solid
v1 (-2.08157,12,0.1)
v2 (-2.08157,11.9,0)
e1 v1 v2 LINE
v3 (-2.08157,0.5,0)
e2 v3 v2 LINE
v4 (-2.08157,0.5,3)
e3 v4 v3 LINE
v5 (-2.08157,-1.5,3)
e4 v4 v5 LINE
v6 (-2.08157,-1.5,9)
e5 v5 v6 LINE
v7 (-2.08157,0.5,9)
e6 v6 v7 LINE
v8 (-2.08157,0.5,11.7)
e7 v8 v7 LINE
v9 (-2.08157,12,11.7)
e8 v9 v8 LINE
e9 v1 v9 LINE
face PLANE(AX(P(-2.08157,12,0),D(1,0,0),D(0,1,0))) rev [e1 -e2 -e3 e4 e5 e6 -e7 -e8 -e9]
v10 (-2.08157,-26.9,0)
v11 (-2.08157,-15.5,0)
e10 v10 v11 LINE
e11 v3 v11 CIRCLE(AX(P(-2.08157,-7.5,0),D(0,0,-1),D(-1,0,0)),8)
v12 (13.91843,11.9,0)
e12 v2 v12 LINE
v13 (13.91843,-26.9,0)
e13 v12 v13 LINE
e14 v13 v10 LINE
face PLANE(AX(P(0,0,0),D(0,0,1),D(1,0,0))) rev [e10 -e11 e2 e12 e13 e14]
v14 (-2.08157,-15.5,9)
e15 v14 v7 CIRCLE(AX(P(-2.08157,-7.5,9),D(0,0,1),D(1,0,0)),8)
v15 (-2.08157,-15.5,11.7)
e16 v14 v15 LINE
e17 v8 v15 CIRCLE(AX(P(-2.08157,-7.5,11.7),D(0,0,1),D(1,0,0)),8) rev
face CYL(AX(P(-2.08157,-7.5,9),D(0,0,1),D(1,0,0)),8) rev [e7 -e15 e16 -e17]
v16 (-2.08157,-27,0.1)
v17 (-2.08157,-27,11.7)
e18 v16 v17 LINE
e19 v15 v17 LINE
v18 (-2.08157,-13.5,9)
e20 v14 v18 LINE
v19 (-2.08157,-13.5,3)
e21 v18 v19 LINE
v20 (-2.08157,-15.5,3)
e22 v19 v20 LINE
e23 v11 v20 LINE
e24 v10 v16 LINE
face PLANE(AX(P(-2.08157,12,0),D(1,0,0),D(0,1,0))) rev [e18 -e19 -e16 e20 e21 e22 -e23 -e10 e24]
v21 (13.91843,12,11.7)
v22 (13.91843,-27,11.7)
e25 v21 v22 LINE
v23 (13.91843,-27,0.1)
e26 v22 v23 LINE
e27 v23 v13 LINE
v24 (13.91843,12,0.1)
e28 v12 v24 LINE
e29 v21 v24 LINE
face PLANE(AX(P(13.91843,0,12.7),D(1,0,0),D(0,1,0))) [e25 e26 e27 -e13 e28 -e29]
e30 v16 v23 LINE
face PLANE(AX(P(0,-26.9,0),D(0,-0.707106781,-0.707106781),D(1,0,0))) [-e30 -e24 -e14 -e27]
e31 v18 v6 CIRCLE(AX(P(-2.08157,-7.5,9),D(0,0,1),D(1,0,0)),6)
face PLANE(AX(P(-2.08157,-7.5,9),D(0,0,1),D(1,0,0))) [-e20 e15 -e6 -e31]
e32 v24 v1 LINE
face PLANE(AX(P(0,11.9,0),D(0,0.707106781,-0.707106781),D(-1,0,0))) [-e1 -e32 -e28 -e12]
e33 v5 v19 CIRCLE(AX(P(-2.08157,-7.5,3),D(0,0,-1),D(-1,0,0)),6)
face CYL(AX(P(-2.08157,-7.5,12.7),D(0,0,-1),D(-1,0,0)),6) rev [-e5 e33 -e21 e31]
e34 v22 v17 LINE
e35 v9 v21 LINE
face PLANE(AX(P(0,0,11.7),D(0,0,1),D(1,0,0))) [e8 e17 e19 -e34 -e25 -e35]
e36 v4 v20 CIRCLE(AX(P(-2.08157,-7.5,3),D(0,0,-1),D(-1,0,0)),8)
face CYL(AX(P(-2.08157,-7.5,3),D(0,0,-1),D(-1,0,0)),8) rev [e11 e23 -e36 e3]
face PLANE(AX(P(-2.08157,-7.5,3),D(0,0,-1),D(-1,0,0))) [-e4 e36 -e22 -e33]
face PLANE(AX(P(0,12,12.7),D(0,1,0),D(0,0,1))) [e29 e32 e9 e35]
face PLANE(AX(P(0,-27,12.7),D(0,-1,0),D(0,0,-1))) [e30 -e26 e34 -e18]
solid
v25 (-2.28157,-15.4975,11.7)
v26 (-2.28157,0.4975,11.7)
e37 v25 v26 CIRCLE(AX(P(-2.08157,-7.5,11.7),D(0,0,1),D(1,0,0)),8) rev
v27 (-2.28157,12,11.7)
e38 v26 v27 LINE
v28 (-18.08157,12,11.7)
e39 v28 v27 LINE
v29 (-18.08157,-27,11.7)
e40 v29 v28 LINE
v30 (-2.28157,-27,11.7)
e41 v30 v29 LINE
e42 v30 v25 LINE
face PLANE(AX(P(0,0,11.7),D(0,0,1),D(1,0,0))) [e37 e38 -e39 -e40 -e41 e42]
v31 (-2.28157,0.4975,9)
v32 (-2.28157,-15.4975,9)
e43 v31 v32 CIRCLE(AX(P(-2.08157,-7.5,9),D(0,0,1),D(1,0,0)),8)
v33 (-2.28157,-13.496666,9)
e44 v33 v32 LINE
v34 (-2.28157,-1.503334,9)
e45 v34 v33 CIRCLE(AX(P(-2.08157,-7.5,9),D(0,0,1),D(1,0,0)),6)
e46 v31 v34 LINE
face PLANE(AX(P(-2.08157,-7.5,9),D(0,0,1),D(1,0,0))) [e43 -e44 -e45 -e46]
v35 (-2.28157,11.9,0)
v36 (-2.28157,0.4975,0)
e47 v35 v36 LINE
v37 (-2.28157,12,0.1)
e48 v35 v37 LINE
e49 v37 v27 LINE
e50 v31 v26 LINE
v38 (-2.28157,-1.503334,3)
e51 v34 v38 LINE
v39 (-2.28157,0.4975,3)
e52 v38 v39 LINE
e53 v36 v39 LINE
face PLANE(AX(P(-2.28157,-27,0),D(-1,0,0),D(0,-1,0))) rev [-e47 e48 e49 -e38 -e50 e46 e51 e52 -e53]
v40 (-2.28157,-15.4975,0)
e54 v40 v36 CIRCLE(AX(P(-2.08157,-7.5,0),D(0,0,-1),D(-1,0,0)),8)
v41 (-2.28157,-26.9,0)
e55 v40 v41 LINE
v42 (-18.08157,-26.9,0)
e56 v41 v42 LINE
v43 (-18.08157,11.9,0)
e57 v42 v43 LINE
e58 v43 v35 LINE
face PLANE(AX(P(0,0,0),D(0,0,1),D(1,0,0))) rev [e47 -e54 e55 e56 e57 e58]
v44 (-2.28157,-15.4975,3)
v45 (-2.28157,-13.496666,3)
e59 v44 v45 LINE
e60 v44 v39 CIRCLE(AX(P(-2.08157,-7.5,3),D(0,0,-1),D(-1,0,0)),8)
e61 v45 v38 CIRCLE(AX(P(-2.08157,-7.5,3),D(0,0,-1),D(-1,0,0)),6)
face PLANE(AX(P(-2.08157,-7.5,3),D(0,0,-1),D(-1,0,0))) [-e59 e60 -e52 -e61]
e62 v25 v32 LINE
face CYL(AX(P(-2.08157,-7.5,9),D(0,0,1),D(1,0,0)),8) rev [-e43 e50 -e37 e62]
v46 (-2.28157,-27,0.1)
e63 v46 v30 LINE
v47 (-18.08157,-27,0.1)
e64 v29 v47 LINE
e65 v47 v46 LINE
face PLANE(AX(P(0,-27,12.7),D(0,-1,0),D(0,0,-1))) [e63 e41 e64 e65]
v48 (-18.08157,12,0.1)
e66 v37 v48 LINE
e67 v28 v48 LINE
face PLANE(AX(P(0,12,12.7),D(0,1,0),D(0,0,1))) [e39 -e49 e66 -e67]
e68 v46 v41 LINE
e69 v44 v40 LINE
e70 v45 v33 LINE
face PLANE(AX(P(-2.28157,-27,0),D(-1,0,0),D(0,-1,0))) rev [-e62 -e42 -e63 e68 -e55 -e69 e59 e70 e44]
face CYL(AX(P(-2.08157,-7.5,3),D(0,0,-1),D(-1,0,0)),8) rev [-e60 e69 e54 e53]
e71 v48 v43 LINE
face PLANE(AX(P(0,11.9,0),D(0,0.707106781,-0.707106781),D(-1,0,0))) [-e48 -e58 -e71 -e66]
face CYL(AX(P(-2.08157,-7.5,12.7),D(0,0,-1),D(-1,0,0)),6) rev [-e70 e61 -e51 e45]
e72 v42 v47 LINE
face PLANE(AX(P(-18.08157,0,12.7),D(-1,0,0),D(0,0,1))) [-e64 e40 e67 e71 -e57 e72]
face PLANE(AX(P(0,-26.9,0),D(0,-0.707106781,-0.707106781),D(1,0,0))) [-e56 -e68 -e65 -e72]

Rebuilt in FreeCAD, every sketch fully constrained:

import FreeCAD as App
import Part
import Sketcher
from FreeCAD import Vector


def edges_at(feature, points):
    """Names of the edges that pass closest to the given points."""
    edges = feature.Shape.Edges
    near = lambda p: min(range(len(edges)), key=lambda i: edges[i].distToShape(Part.Vertex(*p))[0])
    return sorted({f"Edge{near(p) + 1}" for p in points})

doc = App.newDocument("Part")
body = doc.addObject("PartDesign::Body", "Body")
body.AllowCompound = True

# Sketch on XY plane
sketch1 = body.newObject("Sketcher::SketchObject", "Sketch")
sketch1.AttachmentSupport = (doc.getObject("XY_Plane"), [""])
sketch1.MapMode = "FlatFace"
sketch1.addGeometry(Part.LineSegment(Vector(-18, 12, 0), Vector(-18, -27, 0)), False)
sketch1.addGeometry(Part.LineSegment(Vector(-18, -27, 0), Vector(14, -27, 0)), False)
sketch1.addGeometry(Part.LineSegment(Vector(14, -27, 0), Vector(14, 12, 0)), False)
sketch1.addGeometry(Part.LineSegment(Vector(14, 12, 0), Vector(-18, 12, 0)), False)
sketch1.addGeometry(Part.Circle(Vector(-2, -8, 0), Vector(0, 0, 1), 6), False)
sketch1.addConstraint(Sketcher.Constraint("Coincident", 0, 2, 1, 1))
sketch1.addConstraint(Sketcher.Constraint("Coincident", 1, 2, 2, 1))
sketch1.addConstraint(Sketcher.Constraint("Coincident", 2, 2, 3, 1))
sketch1.addConstraint(Sketcher.Constraint("Coincident", 3, 2, 0, 1))
sketch1.addConstraint(Sketcher.Constraint("Vertical", 0))
sketch1.addConstraint(Sketcher.Constraint("Horizontal", 1))
sketch1.addConstraint(Sketcher.Constraint("Vertical", 2))
sketch1.addConstraint(Sketcher.Constraint("Horizontal", 3))
sketch1.addConstraint(Sketcher.Constraint("Diameter", 4, 12.0))
sketch1.addConstraint(Sketcher.Constraint("DistanceX", 1, 1, 1, 2, 32.0))
sketch1.addConstraint(Sketcher.Constraint("DistanceY", 0, 2, 0, 1, 39.0))
sketch1.addConstraint(Sketcher.Constraint("DistanceY", 0, 2, -1, 1, 27.0))
sketch1.addConstraint(Sketcher.Constraint("DistanceX", 0, 2, 4, 3, 16.0))
sketch1.addConstraint(Sketcher.Constraint("DistanceY", 4, 3, -1, 1, 7.5))
sketch1.addConstraint(Sketcher.Constraint("DistanceX", 4, 3, -1, 1, 2.08157))
pad1 = body.newObject("PartDesign::Pad", "Pad")
pad1.Profile = sketch1
pad1.Length = 12.7

# Sketch on XY plane
sketch2 = body.newObject("Sketcher::SketchObject", "Sketch001")
sketch2.AttachmentSupport = (doc.getObject("XY_Plane"), [""])
sketch2.MapMode = "FlatFace"
sketch2.AttachmentOffset = App.Placement(Vector(0, 0, 12.7), App.Rotation())
sketch2.addGeometry(Part.Circle(Vector(-2, -8, 0), Vector(0, 0, 1), 8), False)
sketch2.addConstraint(Sketcher.Constraint("Diameter", 0, 16.0))
sketch2.addConstraint(Sketcher.Constraint("DistanceY", 0, 3, -1, 1, 7.5))
sketch2.addConstraint(Sketcher.Constraint("DistanceX", 0, 3, -1, 1, 2.08157))
pocket1 = body.newObject("PartDesign::Pocket", "Pocket")
pocket1.Profile = sketch2
pocket1.Length = 3.7

# Sketch on XY plane
sketch3 = body.newObject("Sketcher::SketchObject", "Sketch002")
sketch3.AttachmentSupport = (doc.getObject("XY_Plane"), [""])
sketch3.MapMode = "FlatFace"
sketch3.addGeometry(Part.Circle(Vector(-2, -8, 0), Vector(0, 0, 1), 8), False)
sketch3.addConstraint(Sketcher.Constraint("Diameter", 0, 16.0))
sketch3.addConstraint(Sketcher.Constraint("DistanceY", 0, 3, -1, 1, 7.5))
sketch3.addConstraint(Sketcher.Constraint("DistanceX", 0, 3, -1, 1, 2.08157))
pocket2 = body.newObject("PartDesign::Pocket", "Pocket001")
pocket2.Profile = sketch3
pocket2.Length = 3
pocket2.Reversed = True
doc.recompute()

chamfer = body.newObject("PartDesign::Chamfer", "Chamfer")
chamfer.Base = (pocket2, edges_at(pocket2, [
    (-2.082, 12, 12.7),
    (-2.082, -27, 12.7),
    (-2.082, 12, 0),
    (-2.082, -27, 0),
]))
chamfer.Size = 0.1

# Sketch on XY plane
sketch4 = body.newObject("Sketcher::SketchObject", "Sketch003")
sketch4.AttachmentSupport = (doc.getObject("XY_Plane"), [""])
sketch4.MapMode = "FlatFace"
sketch4.addGeometry(Part.LineSegment(Vector(-2.28, 12, 0), Vector(-2.28, -27, 0)), False)
sketch4.addGeometry(Part.LineSegment(Vector(-2.28, -27, 0), Vector(-2.08, -27, 0)), False)
sketch4.addGeometry(Part.LineSegment(Vector(-2.08, -27, 0), Vector(-2.08, 12, 0)), False)
sketch4.addGeometry(Part.LineSegment(Vector(-2.08, 12, 0), Vector(-2.28, 12, 0)), False)
sketch4.addConstraint(Sketcher.Constraint("Coincident", 0, 2, 1, 1))
sketch4.addConstraint(Sketcher.Constraint("Coincident", 1, 2, 2, 1))
sketch4.addConstraint(Sketcher.Constraint("Coincident", 2, 2, 3, 1))
sketch4.addConstraint(Sketcher.Constraint("Coincident", 3, 2, 0, 1))
sketch4.addConstraint(Sketcher.Constraint("Vertical", 0))
sketch4.addConstraint(Sketcher.Constraint("Horizontal", 1))
sketch4.addConstraint(Sketcher.Constraint("Vertical", 2))
sketch4.addConstraint(Sketcher.Constraint("Horizontal", 3))
sketch4.addConstraint(Sketcher.Constraint("DistanceY", 0, 2, 0, 1, 39.0))
sketch4.addConstraint(Sketcher.Constraint("DistanceX", 1, 1, 1, 2, 0.2))
sketch4.addConstraint(Sketcher.Constraint("DistanceY", 0, 2, -1, 1, 27.0))
sketch4.addConstraint(Sketcher.Constraint("DistanceX", 0, 2, -1, 1, 2.28157))
pocket3 = body.newObject("PartDesign::Pocket", "Pocket002")
pocket3.Profile = sketch4
pocket3.Length = 12.7
pocket3.Reversed = True

# Sketch on XY plane
sketch5 = body.newObject("Sketcher::SketchObject", "Sketch004")
sketch5.AttachmentSupport = (doc.getObject("XY_Plane"), [""])
sketch5.MapMode = "FlatFace"
sketch5.AttachmentOffset = App.Placement(Vector(0, 0, 12.7), App.Rotation())
sketch5.addGeometry(Part.LineSegment(Vector(-31, 15, 0), Vector(-31, -31, 0)), False)
sketch5.addGeometry(Part.LineSegment(Vector(-31, -31, 0), Vector(28, -31, 0)), False)
sketch5.addGeometry(Part.LineSegment(Vector(28, -31, 0), Vector(28, 15, 0)), False)
sketch5.addGeometry(Part.LineSegment(Vector(28, 15, 0), Vector(-31, 15, 0)), False)
sketch5.addConstraint(Sketcher.Constraint("Coincident", 0, 2, 1, 1))
sketch5.addConstraint(Sketcher.Constraint("Coincident", 1, 2, 2, 1))
sketch5.addConstraint(Sketcher.Constraint("Coincident", 2, 2, 3, 1))
sketch5.addConstraint(Sketcher.Constraint("Coincident", 3, 2, 0, 1))
sketch5.addConstraint(Sketcher.Constraint("Vertical", 0))
sketch5.addConstraint(Sketcher.Constraint("Horizontal", 1))
sketch5.addConstraint(Sketcher.Constraint("Vertical", 2))
sketch5.addConstraint(Sketcher.Constraint("Horizontal", 3))
sketch5.addConstraint(Sketcher.Constraint("DistanceX", 1, 1, 1, 2, 58.510416))
sketch5.addConstraint(Sketcher.Constraint("DistanceY", 0, 2, 0, 1, 45.106424))
sketch5.addConstraint(Sketcher.Constraint("DistanceX", -1, 1, 1, 2, 27.824072))
sketch5.addConstraint(Sketcher.Constraint("DistanceY", 0, 2, -1, 1, 30.535666))
pocket4 = body.newObject("PartDesign::Pocket", "Pocket003")
pocket4.Profile = sketch5
pocket4.Length = 1

doc.recompute()
